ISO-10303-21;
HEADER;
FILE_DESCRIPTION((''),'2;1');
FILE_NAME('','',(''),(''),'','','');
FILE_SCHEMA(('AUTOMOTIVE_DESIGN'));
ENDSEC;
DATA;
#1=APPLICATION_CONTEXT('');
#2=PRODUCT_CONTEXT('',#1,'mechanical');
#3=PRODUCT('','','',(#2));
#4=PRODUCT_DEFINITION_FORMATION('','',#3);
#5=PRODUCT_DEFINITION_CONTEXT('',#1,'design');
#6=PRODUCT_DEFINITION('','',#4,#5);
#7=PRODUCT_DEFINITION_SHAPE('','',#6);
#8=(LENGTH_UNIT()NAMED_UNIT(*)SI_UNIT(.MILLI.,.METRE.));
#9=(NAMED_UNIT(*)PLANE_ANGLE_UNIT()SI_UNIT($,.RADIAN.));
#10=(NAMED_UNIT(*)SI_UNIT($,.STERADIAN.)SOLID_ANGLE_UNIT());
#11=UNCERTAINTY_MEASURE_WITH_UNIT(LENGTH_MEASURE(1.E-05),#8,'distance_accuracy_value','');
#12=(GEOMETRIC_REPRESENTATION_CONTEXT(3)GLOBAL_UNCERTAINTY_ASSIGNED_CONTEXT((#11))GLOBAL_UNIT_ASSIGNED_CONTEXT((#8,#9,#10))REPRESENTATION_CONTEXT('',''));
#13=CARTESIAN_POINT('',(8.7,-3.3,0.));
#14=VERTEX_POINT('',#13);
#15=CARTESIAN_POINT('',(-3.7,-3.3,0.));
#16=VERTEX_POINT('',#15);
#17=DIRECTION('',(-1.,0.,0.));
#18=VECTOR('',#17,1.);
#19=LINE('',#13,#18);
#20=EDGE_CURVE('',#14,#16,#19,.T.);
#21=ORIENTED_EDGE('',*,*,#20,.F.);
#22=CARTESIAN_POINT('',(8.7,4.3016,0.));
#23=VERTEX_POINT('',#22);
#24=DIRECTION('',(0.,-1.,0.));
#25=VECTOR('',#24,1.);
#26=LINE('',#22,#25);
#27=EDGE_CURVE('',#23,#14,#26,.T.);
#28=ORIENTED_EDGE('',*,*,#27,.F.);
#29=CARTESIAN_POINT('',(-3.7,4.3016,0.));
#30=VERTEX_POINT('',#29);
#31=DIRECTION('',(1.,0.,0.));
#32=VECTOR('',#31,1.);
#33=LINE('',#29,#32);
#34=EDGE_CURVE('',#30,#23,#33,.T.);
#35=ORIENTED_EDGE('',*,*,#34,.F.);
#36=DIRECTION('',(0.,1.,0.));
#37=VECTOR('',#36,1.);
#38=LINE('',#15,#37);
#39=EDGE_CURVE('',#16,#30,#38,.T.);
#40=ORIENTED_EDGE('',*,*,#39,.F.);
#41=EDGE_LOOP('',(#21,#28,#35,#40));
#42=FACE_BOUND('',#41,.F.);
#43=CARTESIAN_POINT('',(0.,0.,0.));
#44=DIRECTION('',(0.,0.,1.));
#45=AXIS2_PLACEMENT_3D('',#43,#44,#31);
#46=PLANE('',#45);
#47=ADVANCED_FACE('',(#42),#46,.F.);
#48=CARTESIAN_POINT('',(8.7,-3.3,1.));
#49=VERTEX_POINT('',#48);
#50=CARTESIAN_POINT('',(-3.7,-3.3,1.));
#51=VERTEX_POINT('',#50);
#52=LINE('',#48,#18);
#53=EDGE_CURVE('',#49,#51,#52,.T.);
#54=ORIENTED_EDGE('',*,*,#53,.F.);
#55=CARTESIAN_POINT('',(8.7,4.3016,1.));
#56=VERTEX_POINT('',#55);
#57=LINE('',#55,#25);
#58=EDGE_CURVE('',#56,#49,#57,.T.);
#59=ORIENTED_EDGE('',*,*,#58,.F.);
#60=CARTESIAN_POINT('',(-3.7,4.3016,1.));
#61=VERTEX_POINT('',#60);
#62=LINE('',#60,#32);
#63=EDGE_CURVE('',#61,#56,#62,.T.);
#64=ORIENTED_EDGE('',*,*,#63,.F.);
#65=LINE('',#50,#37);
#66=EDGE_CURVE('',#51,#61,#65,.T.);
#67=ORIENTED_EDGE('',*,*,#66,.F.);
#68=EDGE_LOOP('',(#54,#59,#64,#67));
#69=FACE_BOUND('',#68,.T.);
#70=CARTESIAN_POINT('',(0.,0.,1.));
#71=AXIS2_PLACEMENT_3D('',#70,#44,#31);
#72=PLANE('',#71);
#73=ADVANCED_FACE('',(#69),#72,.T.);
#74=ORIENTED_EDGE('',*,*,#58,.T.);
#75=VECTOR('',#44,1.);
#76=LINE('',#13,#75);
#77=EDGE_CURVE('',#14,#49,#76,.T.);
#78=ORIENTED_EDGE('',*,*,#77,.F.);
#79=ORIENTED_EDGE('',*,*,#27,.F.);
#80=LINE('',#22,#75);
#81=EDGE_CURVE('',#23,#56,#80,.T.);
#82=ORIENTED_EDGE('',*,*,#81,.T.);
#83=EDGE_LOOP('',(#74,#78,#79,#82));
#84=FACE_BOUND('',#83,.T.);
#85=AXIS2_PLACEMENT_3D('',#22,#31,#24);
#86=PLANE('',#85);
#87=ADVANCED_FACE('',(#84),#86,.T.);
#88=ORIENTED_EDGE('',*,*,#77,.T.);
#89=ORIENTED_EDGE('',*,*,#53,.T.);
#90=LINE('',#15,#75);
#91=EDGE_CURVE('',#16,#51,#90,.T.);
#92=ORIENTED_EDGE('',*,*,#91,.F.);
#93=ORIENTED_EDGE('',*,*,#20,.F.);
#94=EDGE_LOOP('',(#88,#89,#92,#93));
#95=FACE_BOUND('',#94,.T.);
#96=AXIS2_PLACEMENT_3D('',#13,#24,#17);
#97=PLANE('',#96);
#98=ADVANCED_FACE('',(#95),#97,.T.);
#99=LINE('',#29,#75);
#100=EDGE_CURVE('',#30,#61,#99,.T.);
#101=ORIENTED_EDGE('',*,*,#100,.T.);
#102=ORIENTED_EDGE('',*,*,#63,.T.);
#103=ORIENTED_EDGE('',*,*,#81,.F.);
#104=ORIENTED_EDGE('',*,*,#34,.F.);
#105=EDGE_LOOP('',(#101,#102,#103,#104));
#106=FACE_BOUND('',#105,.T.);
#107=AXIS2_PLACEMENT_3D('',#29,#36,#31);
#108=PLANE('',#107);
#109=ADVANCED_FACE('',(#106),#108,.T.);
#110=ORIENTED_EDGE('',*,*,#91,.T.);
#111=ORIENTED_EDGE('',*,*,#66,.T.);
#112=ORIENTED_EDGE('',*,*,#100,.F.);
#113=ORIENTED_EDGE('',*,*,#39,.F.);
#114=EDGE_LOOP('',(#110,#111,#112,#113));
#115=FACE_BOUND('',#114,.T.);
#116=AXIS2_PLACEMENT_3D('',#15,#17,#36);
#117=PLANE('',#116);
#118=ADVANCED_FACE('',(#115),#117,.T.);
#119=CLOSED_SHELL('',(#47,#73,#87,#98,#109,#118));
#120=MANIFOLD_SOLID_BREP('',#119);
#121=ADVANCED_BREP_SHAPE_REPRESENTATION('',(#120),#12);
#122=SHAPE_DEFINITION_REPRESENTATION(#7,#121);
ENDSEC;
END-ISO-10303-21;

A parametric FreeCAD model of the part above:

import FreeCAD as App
import Part
import Sketcher
from FreeCAD import Vector
Q = App.Units.Quantity

doc = App.newDocument("Part")
body = doc.addObject("PartDesign::Body", "Body")

sketch1 = body.newObject("Sketcher::SketchObject", "Sketch")
sketch1.AttachmentSupport = (doc.getObject("XY_Plane"), [""])
sketch1.MapMode = "FlatFace"
sketch1.addGeometry(Part.LineSegment(Vector(8.7, 4.3016, 0), Vector(-3.7, 4.3016, 0)), False)
sketch1.addGeometry(Part.LineSegment(Vector(-3.7, 4.3016, 0), Vector(-3.7, -3.3, 0)), False)
sketch1.addGeometry(Part.LineSegment(Vector(-3.7, -3.3, 0), Vector(8.7, -3.3, 0)), False)
sketch1.addGeometry(Part.LineSegment(Vector(8.7, -3.3, 0), Vector(8.7, 4.3016, 0)), False)
sketch1.addConstraint(Sketcher.Constraint("Coincident", 0, 2, 1, 1))
sketch1.addConstraint(Sketcher.Constraint("Coincident", 1, 2, 2, 1))
sketch1.addConstraint(Sketcher.Constraint("Coincident", 2, 2, 3, 1))
sketch1.addConstraint(Sketcher.Constraint("Coincident", 3, 2, 0, 1))
sketch1.addConstraint(Sketcher.Constraint("Horizontal", 0))
sketch1.addConstraint(Sketcher.Constraint("Vertical", 1))
sketch1.addConstraint(Sketcher.Constraint("Horizontal", 2))
sketch1.addConstraint(Sketcher.Constraint("Vertical", 3))
sketch1.addConstraint(Sketcher.Constraint("DistanceX", 0, 2, 0, 1, Q("12.4 mm")))
sketch1.addConstraint(Sketcher.Constraint("DistanceX", 0, 2, -1, 1, Q("3.7 mm")))
sketch1.addConstraint(Sketcher.Constraint("DistanceY", 1, 2, -1, 1, Q("3.3 mm")))
sketch1.addConstraint(Sketcher.Constraint("DistanceY", 1, 2, 1, 1, Q("7.6016 mm")))
pad1 = body.newObject("PartDesign::Pad", "Pad")
pad1.Profile = sketch1
pad1.Length = 1

doc.recompute()
